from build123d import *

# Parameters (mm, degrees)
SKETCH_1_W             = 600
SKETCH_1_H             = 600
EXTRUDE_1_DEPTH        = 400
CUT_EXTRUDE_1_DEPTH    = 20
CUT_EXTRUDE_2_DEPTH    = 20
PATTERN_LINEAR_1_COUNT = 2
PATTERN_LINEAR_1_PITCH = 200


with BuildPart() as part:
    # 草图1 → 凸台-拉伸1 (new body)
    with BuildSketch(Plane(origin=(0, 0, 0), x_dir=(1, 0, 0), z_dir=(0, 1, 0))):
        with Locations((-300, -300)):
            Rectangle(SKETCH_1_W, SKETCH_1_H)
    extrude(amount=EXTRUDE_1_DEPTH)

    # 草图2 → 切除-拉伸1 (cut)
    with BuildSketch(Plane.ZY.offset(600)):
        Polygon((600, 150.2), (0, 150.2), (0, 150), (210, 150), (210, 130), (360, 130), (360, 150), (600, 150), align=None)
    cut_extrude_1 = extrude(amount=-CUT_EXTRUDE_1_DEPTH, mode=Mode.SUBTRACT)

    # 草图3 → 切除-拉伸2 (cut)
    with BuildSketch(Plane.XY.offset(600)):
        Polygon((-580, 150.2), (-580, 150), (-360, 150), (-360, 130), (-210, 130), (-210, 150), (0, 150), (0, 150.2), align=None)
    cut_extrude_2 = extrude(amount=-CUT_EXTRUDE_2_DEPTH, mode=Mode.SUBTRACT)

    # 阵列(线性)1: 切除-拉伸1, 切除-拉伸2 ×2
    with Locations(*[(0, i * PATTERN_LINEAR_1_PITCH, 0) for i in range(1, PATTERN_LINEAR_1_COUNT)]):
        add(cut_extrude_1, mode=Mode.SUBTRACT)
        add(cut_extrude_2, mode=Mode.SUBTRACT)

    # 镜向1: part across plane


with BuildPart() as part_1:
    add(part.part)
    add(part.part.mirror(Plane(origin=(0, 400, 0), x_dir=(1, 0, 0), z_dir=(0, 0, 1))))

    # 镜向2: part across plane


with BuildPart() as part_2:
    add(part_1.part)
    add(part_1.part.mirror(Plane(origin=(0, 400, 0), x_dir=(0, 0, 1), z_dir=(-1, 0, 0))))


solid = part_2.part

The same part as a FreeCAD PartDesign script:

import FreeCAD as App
import Part
import Sketcher

V = App.Vector


def add_polygon(sketch, points):
    """Adds a closed chain of lines whose ends are joined by coincident constraints."""
    first, n = sketch.GeometryCount, len(points)
    for a, b in zip(points, points[1:] + points[:1]):
        sketch.addGeometry(Part.LineSegment(App.Vector(*a, 0), App.Vector(*b, 0)), False)
    for i in range(n):
        sketch.addConstraint(Sketcher.Constraint("Coincident", first + i, 2, first + (i + 1) % n, 1))

doc = App.newDocument("Part")
body = doc.addObject("PartDesign::Body", "Body")

# Sketch on XZ plane
sketch1 = doc.addObject("Sketcher::SketchObject", "Sketch")
body.addObject(sketch1)
sketch1.AttachmentSupport = (doc.XZ_Plane, [""])
sketch1.MapMode = "FlatFace"
add_polygon(sketch1, [(-600, 0), (-600, 600), (0, 600), (0, 0)])  # lines 0-3
sketch1.addConstraint([
    Sketcher.Constraint("Vertical", 0),
    Sketcher.Constraint("Horizontal", 1),
    Sketcher.Constraint("Vertical", 2),
    Sketcher.Constraint("Horizontal", 3),
    Sketcher.Constraint("Coincident", 2, 2, -1, 1),
    Sketcher.Constraint("Equal", 3, 0),
    Sketcher.Constraint("DistanceX", 1, 1, 1, 2, 600.0),
])
pad1 = doc.addObject("PartDesign::Pad", "Pad")
body.addObject(pad1)
pad1.Profile = sketch1
pad1.Length = 400
pad1.Reversed = True

# Sketch on YZ plane
sketch2 = doc.addObject("Sketcher::SketchObject", "Sketch001")
body.addObject(sketch2)
sketch2.AttachmentSupport = (doc.YZ_Plane, [""])
sketch2.MapMode = "FlatFace"
sketch2.AttachmentOffset = App.Placement(V(0, 0, -600), App.Rotation())
add_polygon(sketch2, [(150.2, 600), (150.2, 0), (150, 0), (150, 210), (130, 210), (130, 360), (150, 360), (150, 600)])  # lines 0-7
sketch2.addConstraint([
    Sketcher.Constraint("Vertical", 0),
    Sketcher.Constraint("Horizontal", 1),
    Sketcher.Constraint("Vertical", 2),
    Sketcher.Constraint("Horizontal", 3),
    Sketcher.Constraint("Vertical", 4),
    Sketcher.Constraint("Horizontal", 5),
    Sketcher.Constraint("Vertical", 6),
    Sketcher.Constraint("Horizontal", 7),
    Sketcher.Constraint("PointOnObject", 0, 2, -1),
    Sketcher.Constraint("Vertical", 2, 2, 5, 2),
    Sketcher.Constraint("DistanceX", 3, 2, 3, 1, 20.0),
    Sketcher.Constraint("DistanceY", 0, 2, 0, 1, 600.0),
    Sketcher.Constraint("DistanceY", 2, 1, 2, 2, 210.0),
    Sketcher.Constraint("DistanceY", 4, 1, 4, 2, 150.0),
    Sketcher.Constraint("DistanceX", 1, 2, 1, 1, 0.2),
    Sketcher.Constraint("DistanceX", -1, 1, 1, 2, 150.0),
])
pocket1 = doc.addObject("PartDesign::Pocket", "Pocket")
body.addObject(pocket1)
pocket1.Profile = sketch2
pocket1.Length = 20
pocket1.Reversed = True

# Sketch on XY plane
sketch3 = doc.addObject("Sketcher::SketchObject", "Sketch002")
body.addObject(sketch3)
sketch3.AttachmentSupport = (doc.XY_Plane, [""])
sketch3.MapMode = "FlatFace"
sketch3.AttachmentOffset = App.Placement(V(0, 0, 600), App.Rotation())
add_polygon(sketch3, [(-580, 150.2), (-580, 150), (-360, 150), (-360, 130), (-210, 130), (-210, 150), (0, 150), (0, 150.2)])  # lines 0-7
sketch3.addConstraint([
    Sketcher.Constraint("Vertical", 0),
    Sketcher.Constraint("Horizontal", 1),
    Sketcher.Constraint("Vertical", 2),
    Sketcher.Constraint("Horizontal", 3),
    Sketcher.Constraint("Vertical", 4),
    Sketcher.Constraint("Horizontal", 5),
    Sketcher.Constraint("Vertical", 6),
    Sketcher.Constraint("Horizontal", 7),
    Sketcher.Constraint("PointOnObject", 5, 2, -2),
    Sketcher.Constraint("Horizontal", 1, 2, 4, 2),
    Sketcher.Constraint("DistanceX", 1, 1, 1, 2, 220.0),
    Sketcher.Constraint("DistanceX", 3, 1, 3, 2, 150.0),
    Sketcher.Constraint("DistanceX", 5, 1, 5, 2, 210.0),
    Sketcher.Constraint("DistanceY", 2, 2, 2, 1, 20.0),
    Sketcher.Constraint("DistanceY", 0, 2, 0, 1, 0.2),
    Sketcher.Constraint("DistanceY", -1, 1, 0, 2, 150.0),
])
pocket2 = doc.addObject("PartDesign::Pocket", "Pocket001")
body.addObject(pocket2)
pocket2.Profile = sketch3
pocket2.Length = 20
doc.recompute()

linearpattern = doc.addObject("PartDesign::LinearPattern", "LinearPattern")
body.addObject(linearpattern)
linearpattern.Originals = [pocket1, pocket2]
linearpattern.Direction = (doc.Y_Axis, [""])
linearpattern.Mode = "offset"
linearpattern.Offset = 200
linearpattern.Occurrences = 2
body.Tip = linearpattern
body2 = doc.addObject("PartDesign::Body", "Body001")
doc.recompute()

body2.BaseFeature = body
doc.recompute()

mirroring = doc.addObject("Part::Mirroring", "Mirroring")
mirroring.Source = body
mirroring.Base = V(0, 400, 0)
mirroring.Normal = V(0, 0, 1)
body3 = doc.addObject("PartDesign::Body", "Body002")
body3.BaseFeature = mirroring
boolean = doc.addObject("PartDesign::Boolean", "Boolean")
body2.addObject(boolean)
boolean.Type = "Fuse"
boolean.addObjects([body3])
doc.recompute()
body4 = doc.addObject("PartDesign::Body", "Body003")
doc.recompute()

body4.BaseFeature = body2
doc.recompute()

mirroring2 = doc.addObject("Part::Mirroring", "Mirroring001")
mirroring2.Source = body2
mirroring2.Base = V(0, 400, 0)
mirroring2.Normal = V(-1, 0, 0)
body5 = doc.addObject("PartDesign::Body", "Body004")
body5.BaseFeature = mirroring2
boolean2 = doc.addObject("PartDesign::Boolean", "Boolean001")
body4.addObject(boolean2)
boolean2.Type = "Fuse"
boolean2.addObjects([body5])
doc.recompute()
mirroring.Visibility = False
mirroring2.Visibility = False

doc.recompute()
